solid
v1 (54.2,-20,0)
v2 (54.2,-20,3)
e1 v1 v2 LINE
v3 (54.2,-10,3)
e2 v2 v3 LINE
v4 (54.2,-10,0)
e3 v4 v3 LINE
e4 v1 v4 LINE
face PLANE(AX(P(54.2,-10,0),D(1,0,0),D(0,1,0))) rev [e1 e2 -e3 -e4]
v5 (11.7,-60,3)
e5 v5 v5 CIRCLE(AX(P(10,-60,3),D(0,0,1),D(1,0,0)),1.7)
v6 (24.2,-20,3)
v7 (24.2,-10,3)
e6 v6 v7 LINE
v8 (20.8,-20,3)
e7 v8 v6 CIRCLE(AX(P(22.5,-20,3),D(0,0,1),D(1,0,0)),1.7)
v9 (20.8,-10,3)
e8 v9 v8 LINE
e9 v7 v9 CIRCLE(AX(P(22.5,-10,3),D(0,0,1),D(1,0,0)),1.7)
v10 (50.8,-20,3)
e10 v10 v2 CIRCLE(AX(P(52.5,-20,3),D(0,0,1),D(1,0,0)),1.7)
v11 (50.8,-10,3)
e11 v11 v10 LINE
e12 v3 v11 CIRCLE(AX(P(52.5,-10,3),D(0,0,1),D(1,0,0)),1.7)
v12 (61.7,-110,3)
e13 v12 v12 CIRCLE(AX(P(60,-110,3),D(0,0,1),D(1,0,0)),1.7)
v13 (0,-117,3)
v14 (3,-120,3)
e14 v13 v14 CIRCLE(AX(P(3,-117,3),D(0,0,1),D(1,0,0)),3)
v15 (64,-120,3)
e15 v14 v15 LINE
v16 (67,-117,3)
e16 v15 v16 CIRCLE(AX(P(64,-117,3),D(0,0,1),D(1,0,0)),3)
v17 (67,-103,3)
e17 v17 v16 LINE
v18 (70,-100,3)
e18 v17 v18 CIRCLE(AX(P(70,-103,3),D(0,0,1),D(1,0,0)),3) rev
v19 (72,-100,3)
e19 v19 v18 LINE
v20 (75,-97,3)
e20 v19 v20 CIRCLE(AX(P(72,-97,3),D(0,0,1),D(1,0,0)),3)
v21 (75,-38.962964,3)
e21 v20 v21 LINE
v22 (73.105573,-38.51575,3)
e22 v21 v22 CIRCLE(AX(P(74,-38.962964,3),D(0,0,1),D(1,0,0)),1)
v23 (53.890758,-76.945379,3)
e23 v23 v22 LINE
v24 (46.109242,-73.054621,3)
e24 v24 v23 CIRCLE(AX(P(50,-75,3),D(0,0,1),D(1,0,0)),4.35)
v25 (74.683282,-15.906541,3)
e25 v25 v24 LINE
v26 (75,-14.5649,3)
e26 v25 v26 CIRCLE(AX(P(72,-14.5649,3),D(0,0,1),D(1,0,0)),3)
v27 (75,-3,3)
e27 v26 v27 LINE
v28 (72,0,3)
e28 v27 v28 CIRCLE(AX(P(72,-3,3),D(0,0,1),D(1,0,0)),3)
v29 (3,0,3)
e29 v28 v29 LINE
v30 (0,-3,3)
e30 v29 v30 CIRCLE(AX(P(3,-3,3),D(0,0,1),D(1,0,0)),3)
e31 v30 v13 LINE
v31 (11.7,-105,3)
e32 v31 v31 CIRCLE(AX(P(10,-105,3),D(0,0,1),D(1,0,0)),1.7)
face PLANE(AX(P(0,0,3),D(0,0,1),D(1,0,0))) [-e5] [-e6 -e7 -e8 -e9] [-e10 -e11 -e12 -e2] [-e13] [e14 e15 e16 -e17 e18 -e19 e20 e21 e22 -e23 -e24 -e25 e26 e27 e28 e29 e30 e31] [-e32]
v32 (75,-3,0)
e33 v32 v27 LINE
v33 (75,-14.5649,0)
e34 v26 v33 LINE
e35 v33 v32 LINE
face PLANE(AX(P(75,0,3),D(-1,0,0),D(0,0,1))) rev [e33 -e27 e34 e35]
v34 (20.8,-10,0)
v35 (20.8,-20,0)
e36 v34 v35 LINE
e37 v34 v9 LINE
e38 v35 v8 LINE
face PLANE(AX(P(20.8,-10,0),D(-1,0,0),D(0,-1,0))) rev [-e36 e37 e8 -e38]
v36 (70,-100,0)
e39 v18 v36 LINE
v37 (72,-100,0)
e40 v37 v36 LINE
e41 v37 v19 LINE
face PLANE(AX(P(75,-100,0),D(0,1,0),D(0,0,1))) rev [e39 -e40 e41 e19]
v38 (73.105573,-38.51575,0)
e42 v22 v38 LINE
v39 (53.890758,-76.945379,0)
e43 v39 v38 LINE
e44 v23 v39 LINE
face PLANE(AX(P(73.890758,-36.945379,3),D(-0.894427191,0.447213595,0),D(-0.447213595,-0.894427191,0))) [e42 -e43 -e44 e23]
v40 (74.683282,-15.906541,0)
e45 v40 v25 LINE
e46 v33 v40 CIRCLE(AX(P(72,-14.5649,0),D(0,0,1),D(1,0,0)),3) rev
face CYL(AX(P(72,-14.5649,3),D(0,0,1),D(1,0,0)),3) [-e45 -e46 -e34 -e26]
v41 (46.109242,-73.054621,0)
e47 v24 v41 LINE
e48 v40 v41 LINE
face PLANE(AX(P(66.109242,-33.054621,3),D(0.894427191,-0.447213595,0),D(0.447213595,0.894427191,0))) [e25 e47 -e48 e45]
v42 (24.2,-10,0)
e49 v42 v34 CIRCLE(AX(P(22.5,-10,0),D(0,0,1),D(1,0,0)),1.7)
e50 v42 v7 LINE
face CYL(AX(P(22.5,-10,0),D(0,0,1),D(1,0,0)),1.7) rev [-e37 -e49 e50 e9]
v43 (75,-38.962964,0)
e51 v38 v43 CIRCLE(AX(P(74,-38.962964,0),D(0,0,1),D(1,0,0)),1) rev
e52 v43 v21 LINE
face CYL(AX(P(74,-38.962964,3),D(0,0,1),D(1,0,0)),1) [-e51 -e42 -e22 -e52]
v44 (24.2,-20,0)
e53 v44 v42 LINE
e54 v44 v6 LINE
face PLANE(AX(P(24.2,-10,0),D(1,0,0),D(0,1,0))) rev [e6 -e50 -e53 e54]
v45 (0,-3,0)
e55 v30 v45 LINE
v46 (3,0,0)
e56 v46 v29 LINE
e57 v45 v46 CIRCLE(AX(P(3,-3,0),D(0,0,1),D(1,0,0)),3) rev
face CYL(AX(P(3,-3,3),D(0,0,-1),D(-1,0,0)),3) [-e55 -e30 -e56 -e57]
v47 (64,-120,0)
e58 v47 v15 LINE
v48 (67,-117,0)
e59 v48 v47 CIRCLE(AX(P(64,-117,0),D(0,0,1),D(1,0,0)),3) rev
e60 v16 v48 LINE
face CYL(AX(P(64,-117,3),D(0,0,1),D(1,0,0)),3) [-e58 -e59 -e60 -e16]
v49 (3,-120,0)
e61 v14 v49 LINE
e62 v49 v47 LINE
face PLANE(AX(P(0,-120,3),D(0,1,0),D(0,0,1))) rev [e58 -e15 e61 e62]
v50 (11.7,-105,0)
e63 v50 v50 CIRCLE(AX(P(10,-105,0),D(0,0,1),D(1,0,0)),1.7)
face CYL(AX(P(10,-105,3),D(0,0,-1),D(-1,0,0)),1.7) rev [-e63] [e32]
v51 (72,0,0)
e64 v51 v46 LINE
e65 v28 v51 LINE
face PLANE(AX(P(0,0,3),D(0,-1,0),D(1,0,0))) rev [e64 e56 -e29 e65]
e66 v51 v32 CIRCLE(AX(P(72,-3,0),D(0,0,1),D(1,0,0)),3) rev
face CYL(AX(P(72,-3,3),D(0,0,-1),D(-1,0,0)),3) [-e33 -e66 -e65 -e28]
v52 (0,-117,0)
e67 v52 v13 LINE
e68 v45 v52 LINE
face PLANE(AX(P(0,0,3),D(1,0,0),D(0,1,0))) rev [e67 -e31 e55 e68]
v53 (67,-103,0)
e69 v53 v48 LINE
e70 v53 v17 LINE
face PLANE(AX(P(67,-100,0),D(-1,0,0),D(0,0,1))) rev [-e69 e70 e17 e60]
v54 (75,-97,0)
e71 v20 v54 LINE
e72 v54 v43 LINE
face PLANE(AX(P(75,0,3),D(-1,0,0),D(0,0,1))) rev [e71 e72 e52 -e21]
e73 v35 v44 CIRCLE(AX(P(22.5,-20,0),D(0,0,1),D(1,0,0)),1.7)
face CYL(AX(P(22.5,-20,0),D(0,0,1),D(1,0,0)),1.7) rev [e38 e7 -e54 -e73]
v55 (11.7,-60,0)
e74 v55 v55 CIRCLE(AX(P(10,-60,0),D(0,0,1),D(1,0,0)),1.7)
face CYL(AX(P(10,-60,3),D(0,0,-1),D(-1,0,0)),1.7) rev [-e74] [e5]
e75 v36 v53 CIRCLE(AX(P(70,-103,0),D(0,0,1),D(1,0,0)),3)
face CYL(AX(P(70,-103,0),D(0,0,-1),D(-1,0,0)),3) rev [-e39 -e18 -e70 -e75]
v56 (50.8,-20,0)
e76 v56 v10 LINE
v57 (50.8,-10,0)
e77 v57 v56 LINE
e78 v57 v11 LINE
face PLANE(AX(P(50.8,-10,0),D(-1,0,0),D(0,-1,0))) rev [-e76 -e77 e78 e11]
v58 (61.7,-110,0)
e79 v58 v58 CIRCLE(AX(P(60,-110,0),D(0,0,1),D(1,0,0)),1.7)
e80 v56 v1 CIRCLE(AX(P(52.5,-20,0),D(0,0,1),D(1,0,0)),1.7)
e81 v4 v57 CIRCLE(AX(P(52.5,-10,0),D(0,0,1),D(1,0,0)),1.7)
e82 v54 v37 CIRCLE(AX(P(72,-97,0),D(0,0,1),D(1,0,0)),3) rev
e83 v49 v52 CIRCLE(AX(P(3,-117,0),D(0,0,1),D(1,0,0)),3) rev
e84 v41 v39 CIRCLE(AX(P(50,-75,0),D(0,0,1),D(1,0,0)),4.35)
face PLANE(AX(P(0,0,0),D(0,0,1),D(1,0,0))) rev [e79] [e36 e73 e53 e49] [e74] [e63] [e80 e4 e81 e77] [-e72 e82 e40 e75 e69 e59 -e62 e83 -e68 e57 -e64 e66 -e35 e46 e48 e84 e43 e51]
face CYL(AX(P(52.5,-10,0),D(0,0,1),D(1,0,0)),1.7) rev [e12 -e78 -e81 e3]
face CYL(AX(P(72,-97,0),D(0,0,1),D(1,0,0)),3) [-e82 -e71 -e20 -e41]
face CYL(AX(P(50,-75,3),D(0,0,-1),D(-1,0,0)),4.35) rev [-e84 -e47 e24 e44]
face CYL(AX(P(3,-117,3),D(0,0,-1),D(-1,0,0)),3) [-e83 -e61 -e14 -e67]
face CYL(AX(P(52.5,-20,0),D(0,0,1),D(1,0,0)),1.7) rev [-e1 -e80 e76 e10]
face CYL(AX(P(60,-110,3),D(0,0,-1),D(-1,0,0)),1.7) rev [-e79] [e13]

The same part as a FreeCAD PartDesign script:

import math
import FreeCAD as App
import Part
import Sketcher

V = App.Vector
Q = App.Units.Quantity


def edges_at(feature, points):
    """Names of the edges that pass closest to the given points."""
    edges = feature.Shape.Edges
    near = lambda p: min(range(len(edges)), key=lambda i: edges[i].distToShape(Part.Vertex(*p))[0])
    return sorted({f"Edge{near(p) + 1}" for p in points})


def add_polygon(sketch, points):
    """Adds a closed chain of lines whose ends are joined by coincident constraints."""
    first, n = sketch.GeometryCount, len(points)
    for a, b in zip(points, points[1:] + points[:1]):
        sketch.addGeometry(Part.LineSegment(App.Vector(*a, 0), App.Vector(*b, 0)), False)
    for i in range(n):
        sketch.addConstraint(Sketcher.Constraint("Coincident", first + i, 2, first + (i + 1) % n, 1))

doc = App.newDocument("Part")
params = doc.addObject("Spreadsheet::Sheet", "Params")
for row, (alias, value) in enumerate([
    ("sketch1_diameter", "3.4 mm"),
    ("sketch1_width", "75 mm"),
    ("sketch1_height", "120 mm"),
    ("sketch1_radius", "4.35 mm"),
    ("pad1_length", "3 mm"),
    ("fillet_radius", "3 mm"),
    ("sketch2_radius", "1.7 mm"),
    ("sketch2_height", "10 mm"),
    ("sketch3_width", "8 mm"),
    ("sketch3_height", "20 mm"),
    ("fillet2_radius", "3 mm"),
    ("fillet3_radius", "1 mm"),
], start=1):
    params.set(f"A{row}", alias)
    params.set(f"B{row}", "=" + value)
    params.setAlias(f"B{row}", alias)

body = doc.addObject("PartDesign::Body", "Body")

# Sketch on XY plane
sketch1 = body.newObject("Sketcher::SketchObject", "Sketch")
sketch1.AttachmentSupport = (doc.getObject("XY_Plane"), [""])
sketch1.MapMode = "FlatFace"
sketch1.addGeometry(Part.LineSegment(V(75, 0, 0), V(0, 0, 0)), False)
sketch1.addGeometry(Part.LineSegment(V(0, 0, 0), V(0, -120, 0)), False)
sketch1.addGeometry(Part.LineSegment(V(0, -120, 0), V(75, -120, 0)), False)
sketch1.addGeometry(Part.LineSegment(V(75, -120, 0), V(75, -34.7, 0)), False)
sketch1.addGeometry(Part.LineSegment(V(75, -34.7, 0), V(53.9, -76.9, 0)), False)
sketch1.addGeometry(Part.ArcOfCircle(Part.Circle(V(50, -75, 0), V(0, 0, 1), 4.3), math.radians(153), math.radians(333)), False)
sketch1.addGeometry(Part.LineSegment(V(46.1, -73.1, 0), V(75, -15.3, 0)), False)
sketch1.addGeometry(Part.LineSegment(V(75, -15.3, 0), V(75, 0, 0)), False)
sketch1.addGeometry(Part.Circle(V(10, -105, 0), V(0, 0, 1), 1.7), False)
sketch1.addGeometry(Part.Circle(V(60, -110, 0), V(0, 0, 1), 1.7), False)
sketch1.addGeometry(Part.Circle(V(10, -60, 0), V(0, 0, 1), 1.7), False)
sketch1.addConstraint(Sketcher.Constraint("Coincident", 0, 2, 1, 1))
sketch1.addConstraint(Sketcher.Constraint("Coincident", 1, 2, 2, 1))
sketch1.addConstraint(Sketcher.Constraint("Coincident", 2, 2, 3, 1))
sketch1.addConstraint(Sketcher.Constraint("Coincident", 3, 2, 4, 1))
sketch1.addConstraint(Sketcher.Constraint("Tangent", 4, 2, 5, 2))
sketch1.addConstraint(Sketcher.Constraint("Tangent", 5, 1, 6, 1))
sketch1.addConstraint(Sketcher.Constraint("Coincident", 6, 2, 7, 1))
sketch1.addConstraint(Sketcher.Constraint("Coincident", 7, 2, 0, 1))
sketch1.addConstraint(Sketcher.Constraint("Horizontal", 0))
sketch1.addConstraint(Sketcher.Constraint("Vertical", 1))
sketch1.addConstraint(Sketcher.Constraint("Horizontal", 2))
sketch1.addConstraint(Sketcher.Constraint("Vertical", 3))
sketch1.addConstraint(Sketcher.Constraint("Vertical", 7))
sketch1.addConstraint(Sketcher.Constraint("Coincident", 0, 2, -1, 1))
sketch1.addConstraint(Sketcher.Constraint("Equal", 8, 9))
sketch1.addConstraint(Sketcher.Constraint("Equal", 9, 10))
sketch1.addConstraint(Sketcher.Constraint("Parallel", 4, 6))
sketch1.addConstraint(Sketcher.Constraint("Vertical", 8, 3, 10, 3))
sketch1.addConstraint(Sketcher.Constraint("Vertical", 3, 2, 6, 2))
sketch1.addConstraint(Sketcher.Constraint("Diameter", 8, Q("3.4 mm")))
sketch1.addConstraint(Sketcher.Constraint("DistanceX", 0, 2, 0, 1, Q("75 mm")))
sketch1.addConstraint(Sketcher.Constraint("DistanceY", 1, 2, 1, 1, Q("120 mm")))
sketch1.addConstraint(Sketcher.Constraint("Radius", 5, Q("4.35 mm")))
sketch1.addConstraint(Sketcher.Constraint("DistanceX", -1, 1, 5, 3, Q("50 mm")))
sketch1.addConstraint(Sketcher.Constraint("DistanceY", 5, 3, -1, 1, Q("75 mm")))
sketch1.addConstraint(Sketcher.Constraint("DistanceX", -1, 1, 8, 3, Q("10 mm")))
sketch1.addConstraint(Sketcher.Constraint("DistanceY", 8, 3, -1, 1, Q("105 mm")))
sketch1.addConstraint(Sketcher.Constraint("DistanceX", -1, 1, 9, 3, Q("60 mm")))
sketch1.addConstraint(Sketcher.Constraint("DistanceY", 9, 3, -1, 1, Q("110 mm")))
sketch1.addConstraint(Sketcher.Constraint("DistanceY", 10, 3, -1, 1, Q("60 mm")))
sketch1.addConstraint(Sketcher.Constraint("Distance", 4, Q("47.201699 mm")))
sketch1.setExpression("Constraints[19]", "Params.sketch1_diameter")
sketch1.setExpression("Constraints[20]", "Params.sketch1_width")
sketch1.setExpression("Constraints[21]", "Params.sketch1_height")
sketch1.setExpression("Constraints[22]", "Params.sketch1_radius")
pad1 = body.newObject("PartDesign::Pad", "Pad")
pad1.Profile = sketch1
pad1.setExpression("Length", "Params.pad1_length")
doc.recompute()

fillet = body.newObject("PartDesign::Fillet", "Fillet")
fillet.Base = (pad1, edges_at(pad1, [
    (75, -120, 1.5),
    (0, -120, 1.5),
    (0, 0, 1.5),
    (75, 0, 1.5),
    (75, -15.273, 1.5),
]))
fillet.setExpression("Radius", "Params.fillet_radius")

# Sketch on XY plane
sketch2 = body.newObject("Sketcher::SketchObject", "Sketch001")
sketch2.AttachmentSupport = (doc.getObject("XY_Plane"), [""])
sketch2.MapMode = "FlatFace"
sketch2.AttachmentOffset = App.Placement(V(0, 0, 3), App.Rotation())
sketch2.addGeometry(Part.LineSegment(V(20.8, -10, 0), V(20.8, -20, 0)), False)
sketch2.addGeometry(Part.ArcOfCircle(Part.Circle(V(22.5, -20, 0), V(0, 0, 1), 1.7), math.radians(180), math.radians(360)), False)
sketch2.addGeometry(Part.LineSegment(V(24.2, -20, 0), V(24.2, -10, 0)), False)
sketch2.addGeometry(Part.ArcOfCircle(Part.Circle(V(22.5, -10, 0), V(0, 0, 1), 1.7), math.radians(0), math.radians(180)), False)
sketch2.addGeometry(Part.LineSegment(V(50.8, -10, 0), V(50.8, -20, 0)), False)
sketch2.addGeometry(Part.ArcOfCircle(Part.Circle(V(52.5, -20, 0), V(0, 0, 1), 1.7), math.radians(180), math.radians(360)), False)
sketch2.addGeometry(Part.LineSegment(V(54.2, -20, 0), V(54.2, -10, 0)), False)
sketch2.addGeometry(Part.ArcOfCircle(Part.Circle(V(52.5, -10, 0), V(0, 0, 1), 1.7), math.radians(0), math.radians(180)), False)
sketch2.addConstraint(Sketcher.Constraint("Tangent", 0, 2, 1, 1))
sketch2.addConstraint(Sketcher.Constraint("Tangent", 1, 2, 2, 1))
sketch2.addConstraint(Sketcher.Constraint("Tangent", 2, 2, 3, 1))
sketch2.addConstraint(Sketcher.Constraint("Tangent", 3, 2, 0, 1))
sketch2.addConstraint(Sketcher.Constraint("Tangent", 4, 2, 5, 1))
sketch2.addConstraint(Sketcher.Constraint("Tangent", 5, 2, 6, 1))
sketch2.addConstraint(Sketcher.Constraint("Tangent", 6, 2, 7, 1))
sketch2.addConstraint(Sketcher.Constraint("Tangent", 7, 2, 4, 1))
sketch2.addConstraint(Sketcher.Constraint("Vertical", 0))
sketch2.addConstraint(Sketcher.Constraint("Vertical", 2))
sketch2.addConstraint(Sketcher.Constraint("Vertical", 4))
sketch2.addConstraint(Sketcher.Constraint("Vertical", 6))
sketch2.addConstraint(Sketcher.Constraint("Equal", 3, 5))
sketch2.addConstraint(Sketcher.Constraint("Horizontal", 1, 3, 5, 3))
sketch2.addConstraint(Sketcher.Constraint("Horizontal", 3, 3, 7, 3))
sketch2.addConstraint(Sketcher.Constraint("Radius", 1, Q("1.7 mm")))
sketch2.addConstraint(Sketcher.Constraint("DistanceY", 0, 2, 0, 1, Q("10 mm")))
sketch2.addConstraint(Sketcher.Constraint("DistanceY", 1, 3, -1, 1, Q("20 mm")))
sketch2.addConstraint(Sketcher.Constraint("DistanceX", 1, 3, 5, 3, Q("30 mm")))
sketch2.addConstraint(Sketcher.Constraint("DistanceX", -1, 1, 1, 3, Q("22.5 mm")))
sketch2.setExpression("Constraints[15]", "Params.sketch2_radius")
sketch2.setExpression("Constraints[16]", "Params.sketch2_height")
pocket1 = body.newObject("PartDesign::Pocket", "Pocket")
pocket1.Profile = sketch2
pocket1.Type = "ThroughAll"

# Sketch on XY plane
sketch3 = body.newObject("Sketcher::SketchObject", "Sketch002")
sketch3.AttachmentSupport = (doc.getObject("XY_Plane"), [""])
sketch3.MapMode = "FlatFace"
sketch3.AttachmentOffset = App.Placement(V(0, 0, 3), App.Rotation())
add_polygon(sketch3, [(67, -100), (67, -120), (75, -120), (75, -100)])  # lines 0-3
sketch3.addConstraint(Sketcher.Constraint("Vertical", 0))
sketch3.addConstraint(Sketcher.Constraint("Horizontal", 1))
sketch3.addConstraint(Sketcher.Constraint("Vertical", 2))
sketch3.addConstraint(Sketcher.Constraint("Horizontal", 3))
sketch3.addConstraint(Sketcher.Constraint("DistanceX", 1, 1, 1, 2, Q("8 mm")))
sketch3.addConstraint(Sketcher.Constraint("DistanceY", 0, 2, 0, 1, Q("20 mm")))
sketch3.addConstraint(Sketcher.Constraint("DistanceX", -1, 1, 0, 2, Q("67 mm")))
sketch3.addConstraint(Sketcher.Constraint("DistanceY", 0, 2, -1, 1, Q("120 mm")))
sketch3.setExpression("Constraints[8]", "Params.sketch3_width")
sketch3.setExpression("Constraints[9]", "Params.sketch3_height")
pocket2 = body.newObject("PartDesign::Pocket", "Pocket001")
pocket2.Profile = sketch3
pocket2.Type = "ThroughAll"
doc.recompute()

fillet2 = body.newObject("PartDesign::Fillet", "Fillet001")
fillet2.Base = (pocket2, edges_at(pocket2, [(75, -100, 1.5), (67, -120, 1.5), (67, -100, 1.5)]))
fillet2.setExpression("Radius", "Params.fillet2_radius")
doc.recompute()

fillet3 = body.newObject("PartDesign::Fillet", "Fillet002")
fillet3.Base = (fillet2, edges_at(fillet2, [(75, -34.727, 1.5)]))
fillet3.setExpression("Radius", "Params.fillet3_radius")

doc.recompute()
